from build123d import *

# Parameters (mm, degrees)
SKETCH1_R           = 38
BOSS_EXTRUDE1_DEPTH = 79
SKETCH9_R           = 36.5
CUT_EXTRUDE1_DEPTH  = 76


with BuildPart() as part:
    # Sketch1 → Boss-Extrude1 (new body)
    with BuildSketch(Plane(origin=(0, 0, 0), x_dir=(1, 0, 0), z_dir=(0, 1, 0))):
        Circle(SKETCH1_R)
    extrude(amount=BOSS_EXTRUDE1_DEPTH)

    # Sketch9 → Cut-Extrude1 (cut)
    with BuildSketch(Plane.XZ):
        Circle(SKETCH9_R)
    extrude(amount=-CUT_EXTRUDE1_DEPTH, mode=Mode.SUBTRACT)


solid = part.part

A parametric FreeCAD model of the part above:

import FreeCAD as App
import Part
import Sketcher
from FreeCAD import Vector
Q = App.Units.Quantity

doc = App.newDocument("Part")
body = doc.addObject("PartDesign::Body", "Body")

# Sketch on XZ plane
sketch1 = body.newObject("Sketcher::SketchObject", "Sketch")
sketch1.AttachmentSupport = (doc.getObject("XZ_Plane"), [""])
sketch1.MapMode = "FlatFace"
sketch1.addGeometry(Part.Circle(Vector(0, 0, 0), Vector(0, 0, 1), 38), False)
sketch1.addConstraint([
    Sketcher.Constraint("Coincident", 0, 3, -1, 1),
    Sketcher.Constraint("Diameter", 0, Q("76 mm")),
])
pad1 = body.newObject("PartDesign::Pad", "Pad")
pad1.Profile = sketch1
pad1.Length = 79
pad1.Reversed = True

# Sketch on XZ plane
sketch2 = body.newObject("Sketcher::SketchObject", "Sketch001")
sketch2.AttachmentSupport = (doc.getObject("XZ_Plane"), [""])
sketch2.MapMode = "FlatFace"
sketch2.addGeometry(Part.Circle(Vector(0, 0, 0), Vector(0, 0, 1), 36), False)
sketch2.addConstraint([
    Sketcher.Constraint("Coincident", 0, 3, -1, 1),
    Sketcher.Constraint("Diameter", 0, Q("73 mm")),
])
pocket1 = body.newObject("PartDesign::Pocket", "Pocket")
pocket1.Profile = sketch2
pocket1.Length = 76

doc.recompute()
